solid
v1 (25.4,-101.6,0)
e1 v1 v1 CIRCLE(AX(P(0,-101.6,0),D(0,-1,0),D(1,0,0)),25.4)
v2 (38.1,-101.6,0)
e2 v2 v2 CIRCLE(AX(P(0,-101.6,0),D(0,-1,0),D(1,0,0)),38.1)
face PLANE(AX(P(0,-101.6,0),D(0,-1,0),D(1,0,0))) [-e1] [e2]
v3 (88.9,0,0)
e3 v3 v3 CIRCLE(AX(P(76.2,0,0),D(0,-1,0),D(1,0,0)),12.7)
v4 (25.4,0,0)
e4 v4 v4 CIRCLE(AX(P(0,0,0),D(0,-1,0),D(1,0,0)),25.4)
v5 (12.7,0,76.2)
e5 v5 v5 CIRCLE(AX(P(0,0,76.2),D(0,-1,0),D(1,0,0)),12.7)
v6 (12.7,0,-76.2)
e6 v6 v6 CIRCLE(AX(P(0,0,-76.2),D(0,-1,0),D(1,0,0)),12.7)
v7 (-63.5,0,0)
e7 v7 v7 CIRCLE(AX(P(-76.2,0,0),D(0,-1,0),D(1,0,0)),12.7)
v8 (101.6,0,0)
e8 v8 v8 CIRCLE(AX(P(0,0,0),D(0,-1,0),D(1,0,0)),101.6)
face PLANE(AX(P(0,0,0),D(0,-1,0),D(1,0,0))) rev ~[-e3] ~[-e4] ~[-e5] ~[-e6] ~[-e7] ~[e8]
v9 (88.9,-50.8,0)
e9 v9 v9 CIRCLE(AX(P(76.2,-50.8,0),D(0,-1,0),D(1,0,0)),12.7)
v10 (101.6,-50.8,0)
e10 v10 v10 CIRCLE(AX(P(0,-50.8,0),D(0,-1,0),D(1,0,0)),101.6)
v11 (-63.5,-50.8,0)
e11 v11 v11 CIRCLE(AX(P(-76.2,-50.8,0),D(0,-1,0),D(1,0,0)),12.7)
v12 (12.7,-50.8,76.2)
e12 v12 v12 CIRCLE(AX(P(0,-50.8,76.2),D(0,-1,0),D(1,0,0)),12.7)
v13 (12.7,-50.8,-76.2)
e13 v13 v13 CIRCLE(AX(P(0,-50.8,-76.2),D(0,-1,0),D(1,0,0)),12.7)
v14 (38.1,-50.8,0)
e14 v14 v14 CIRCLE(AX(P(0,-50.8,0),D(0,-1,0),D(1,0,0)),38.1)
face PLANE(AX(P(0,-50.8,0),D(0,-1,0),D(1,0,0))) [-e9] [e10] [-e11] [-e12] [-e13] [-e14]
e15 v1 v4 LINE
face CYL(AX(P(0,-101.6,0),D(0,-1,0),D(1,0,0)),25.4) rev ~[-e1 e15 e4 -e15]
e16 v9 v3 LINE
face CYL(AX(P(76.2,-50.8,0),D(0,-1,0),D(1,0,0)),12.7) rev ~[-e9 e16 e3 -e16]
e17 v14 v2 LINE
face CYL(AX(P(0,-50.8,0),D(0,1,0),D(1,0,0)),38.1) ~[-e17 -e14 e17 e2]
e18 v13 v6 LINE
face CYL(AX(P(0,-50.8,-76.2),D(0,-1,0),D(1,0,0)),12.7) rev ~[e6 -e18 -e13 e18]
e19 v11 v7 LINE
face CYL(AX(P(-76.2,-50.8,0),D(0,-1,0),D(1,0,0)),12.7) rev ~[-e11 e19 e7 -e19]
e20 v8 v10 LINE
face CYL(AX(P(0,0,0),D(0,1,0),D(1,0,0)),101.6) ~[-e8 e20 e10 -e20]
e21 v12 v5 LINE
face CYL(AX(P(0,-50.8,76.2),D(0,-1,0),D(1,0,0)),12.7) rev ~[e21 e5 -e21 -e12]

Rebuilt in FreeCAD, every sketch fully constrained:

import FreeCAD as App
import Part
import Sketcher
Q = App.Units.Quantity

doc = App.newDocument("Part")
body = doc.addObject("PartDesign::Body", "Body")

# Sketch on XZ plane
sketch1 = doc.addObject("Sketcher::SketchObject", "Sketch")
body.addObject(sketch1)
sketch1.AttachmentSupport = (doc.XZ_Plane, [""])
sketch1.MapMode = "FlatFace"
sketch1.addGeometry(Part.Circle(App.Vector(0, 0, 0), App.Vector(0, 0, 1), 102), False)
sketch1.addConstraint(Sketcher.Constraint("Coincident", 0, 3, -1, 1))
sketch1.addConstraint(Sketcher.Constraint("Diameter", 0, Q("8 in")))
pad1 = doc.addObject("PartDesign::Pad", "Pad")
body.addObject(pad1)
pad1.Profile = sketch1
pad1.Length = Q("2 in")

# Sketch on XZ plane
sketch2 = doc.addObject("Sketcher::SketchObject", "Sketch001")
body.addObject(sketch2)
sketch2.AttachmentSupport = (doc.XZ_Plane, [""])
sketch2.MapMode = "FlatFace"
sketch2.AttachmentOffset = App.Placement(App.Vector(0, 0, 2 * 25.4), App.Rotation())
sketch2.addGeometry(Part.Circle(App.Vector(0, 0, 0), App.Vector(0, 0, 1), 38), False)
sketch2.addConstraint(Sketcher.Constraint("Coincident", 0, 3, -1, 1))
sketch2.addConstraint(Sketcher.Constraint("Diameter", 0, Q("3 in")))
pad2 = doc.addObject("PartDesign::Pad", "Pad001")
body.addObject(pad2)
pad2.Profile = sketch2
pad2.Length = Q("2 in")

# Sketch on XZ plane
sketch3 = doc.addObject("Sketcher::SketchObject", "Sketch002")
body.addObject(sketch3)
sketch3.AttachmentSupport = (doc.XZ_Plane, [""])
sketch3.MapMode = "FlatFace"
sketch3.AttachmentOffset = App.Placement(App.Vector(0, 0, 4 * 25.4), App.Rotation())
sketch3.addGeometry(Part.Circle(App.Vector(0, 0, 0), App.Vector(0, 0, 1), 25), False)
sketch3.addConstraint(Sketcher.Constraint("Coincident", 0, 3, -1, 1))
sketch3.addConstraint(Sketcher.Constraint("Diameter", 0, Q("2 in")))
pocket1 = doc.addObject("PartDesign::Pocket", "Pocket")
body.addObject(pocket1)
pocket1.Profile = sketch3
pocket1.Length = Q("5.83 in")

# Sketch on XZ plane
sketch4 = doc.addObject("Sketcher::SketchObject", "Sketch003")
body.addObject(sketch4)
sketch4.AttachmentSupport = (doc.XZ_Plane, [""])
sketch4.MapMode = "FlatFace"
sketch4.AttachmentOffset = App.Placement(App.Vector(0, 0, 2 * 25.4), App.Rotation())
sketch4.addGeometry(Part.Circle(App.Vector(0, 76, 0), App.Vector(0, 0, 1), 13), False)
sketch4.addGeometry(Part.Circle(App.Vector(76, 0, 0), App.Vector(0, 0, 1), 13), False)
sketch4.addGeometry(Part.Circle(App.Vector(0, -76, 0), App.Vector(0, 0, 1), 13), False)
sketch4.addGeometry(Part.Circle(App.Vector(-76, 0, 0), App.Vector(0, 0, 1), 13), False)
sketch4.addConstraint(Sketcher.Constraint("Equal", 0, 1))
sketch4.addConstraint(Sketcher.Constraint("Equal", 1, 2))
sketch4.addConstraint(Sketcher.Constraint("Equal", 2, 3))
sketch4.addConstraint(Sketcher.Constraint("Symmetric", 0, 3, 2, 3, -1, 1))
sketch4.addConstraint(Sketcher.Constraint("Symmetric", 1, 3, 3, 3, -1, 1))
sketch4.addConstraint(Sketcher.Constraint("PointOnObject", 0, 3, -2))
sketch4.addConstraint(Sketcher.Constraint("PointOnObject", 1, 3, -1))
sketch4.addConstraint(Sketcher.Constraint("Diameter", 0, Q("1 in")))
sketch4.addConstraint(Sketcher.Constraint("DistanceY", -1, 1, 0, 3, Q("3 in")))
sketch4.addConstraint(Sketcher.Constraint("DistanceX", -1, 1, 1, 3, Q("3 in")))
pocket2 = doc.addObject("PartDesign::Pocket", "Pocket001")
body.addObject(pocket2)
pocket2.Profile = sketch4
pocket2.Length = Q("3.77 in")

doc.recompute()
